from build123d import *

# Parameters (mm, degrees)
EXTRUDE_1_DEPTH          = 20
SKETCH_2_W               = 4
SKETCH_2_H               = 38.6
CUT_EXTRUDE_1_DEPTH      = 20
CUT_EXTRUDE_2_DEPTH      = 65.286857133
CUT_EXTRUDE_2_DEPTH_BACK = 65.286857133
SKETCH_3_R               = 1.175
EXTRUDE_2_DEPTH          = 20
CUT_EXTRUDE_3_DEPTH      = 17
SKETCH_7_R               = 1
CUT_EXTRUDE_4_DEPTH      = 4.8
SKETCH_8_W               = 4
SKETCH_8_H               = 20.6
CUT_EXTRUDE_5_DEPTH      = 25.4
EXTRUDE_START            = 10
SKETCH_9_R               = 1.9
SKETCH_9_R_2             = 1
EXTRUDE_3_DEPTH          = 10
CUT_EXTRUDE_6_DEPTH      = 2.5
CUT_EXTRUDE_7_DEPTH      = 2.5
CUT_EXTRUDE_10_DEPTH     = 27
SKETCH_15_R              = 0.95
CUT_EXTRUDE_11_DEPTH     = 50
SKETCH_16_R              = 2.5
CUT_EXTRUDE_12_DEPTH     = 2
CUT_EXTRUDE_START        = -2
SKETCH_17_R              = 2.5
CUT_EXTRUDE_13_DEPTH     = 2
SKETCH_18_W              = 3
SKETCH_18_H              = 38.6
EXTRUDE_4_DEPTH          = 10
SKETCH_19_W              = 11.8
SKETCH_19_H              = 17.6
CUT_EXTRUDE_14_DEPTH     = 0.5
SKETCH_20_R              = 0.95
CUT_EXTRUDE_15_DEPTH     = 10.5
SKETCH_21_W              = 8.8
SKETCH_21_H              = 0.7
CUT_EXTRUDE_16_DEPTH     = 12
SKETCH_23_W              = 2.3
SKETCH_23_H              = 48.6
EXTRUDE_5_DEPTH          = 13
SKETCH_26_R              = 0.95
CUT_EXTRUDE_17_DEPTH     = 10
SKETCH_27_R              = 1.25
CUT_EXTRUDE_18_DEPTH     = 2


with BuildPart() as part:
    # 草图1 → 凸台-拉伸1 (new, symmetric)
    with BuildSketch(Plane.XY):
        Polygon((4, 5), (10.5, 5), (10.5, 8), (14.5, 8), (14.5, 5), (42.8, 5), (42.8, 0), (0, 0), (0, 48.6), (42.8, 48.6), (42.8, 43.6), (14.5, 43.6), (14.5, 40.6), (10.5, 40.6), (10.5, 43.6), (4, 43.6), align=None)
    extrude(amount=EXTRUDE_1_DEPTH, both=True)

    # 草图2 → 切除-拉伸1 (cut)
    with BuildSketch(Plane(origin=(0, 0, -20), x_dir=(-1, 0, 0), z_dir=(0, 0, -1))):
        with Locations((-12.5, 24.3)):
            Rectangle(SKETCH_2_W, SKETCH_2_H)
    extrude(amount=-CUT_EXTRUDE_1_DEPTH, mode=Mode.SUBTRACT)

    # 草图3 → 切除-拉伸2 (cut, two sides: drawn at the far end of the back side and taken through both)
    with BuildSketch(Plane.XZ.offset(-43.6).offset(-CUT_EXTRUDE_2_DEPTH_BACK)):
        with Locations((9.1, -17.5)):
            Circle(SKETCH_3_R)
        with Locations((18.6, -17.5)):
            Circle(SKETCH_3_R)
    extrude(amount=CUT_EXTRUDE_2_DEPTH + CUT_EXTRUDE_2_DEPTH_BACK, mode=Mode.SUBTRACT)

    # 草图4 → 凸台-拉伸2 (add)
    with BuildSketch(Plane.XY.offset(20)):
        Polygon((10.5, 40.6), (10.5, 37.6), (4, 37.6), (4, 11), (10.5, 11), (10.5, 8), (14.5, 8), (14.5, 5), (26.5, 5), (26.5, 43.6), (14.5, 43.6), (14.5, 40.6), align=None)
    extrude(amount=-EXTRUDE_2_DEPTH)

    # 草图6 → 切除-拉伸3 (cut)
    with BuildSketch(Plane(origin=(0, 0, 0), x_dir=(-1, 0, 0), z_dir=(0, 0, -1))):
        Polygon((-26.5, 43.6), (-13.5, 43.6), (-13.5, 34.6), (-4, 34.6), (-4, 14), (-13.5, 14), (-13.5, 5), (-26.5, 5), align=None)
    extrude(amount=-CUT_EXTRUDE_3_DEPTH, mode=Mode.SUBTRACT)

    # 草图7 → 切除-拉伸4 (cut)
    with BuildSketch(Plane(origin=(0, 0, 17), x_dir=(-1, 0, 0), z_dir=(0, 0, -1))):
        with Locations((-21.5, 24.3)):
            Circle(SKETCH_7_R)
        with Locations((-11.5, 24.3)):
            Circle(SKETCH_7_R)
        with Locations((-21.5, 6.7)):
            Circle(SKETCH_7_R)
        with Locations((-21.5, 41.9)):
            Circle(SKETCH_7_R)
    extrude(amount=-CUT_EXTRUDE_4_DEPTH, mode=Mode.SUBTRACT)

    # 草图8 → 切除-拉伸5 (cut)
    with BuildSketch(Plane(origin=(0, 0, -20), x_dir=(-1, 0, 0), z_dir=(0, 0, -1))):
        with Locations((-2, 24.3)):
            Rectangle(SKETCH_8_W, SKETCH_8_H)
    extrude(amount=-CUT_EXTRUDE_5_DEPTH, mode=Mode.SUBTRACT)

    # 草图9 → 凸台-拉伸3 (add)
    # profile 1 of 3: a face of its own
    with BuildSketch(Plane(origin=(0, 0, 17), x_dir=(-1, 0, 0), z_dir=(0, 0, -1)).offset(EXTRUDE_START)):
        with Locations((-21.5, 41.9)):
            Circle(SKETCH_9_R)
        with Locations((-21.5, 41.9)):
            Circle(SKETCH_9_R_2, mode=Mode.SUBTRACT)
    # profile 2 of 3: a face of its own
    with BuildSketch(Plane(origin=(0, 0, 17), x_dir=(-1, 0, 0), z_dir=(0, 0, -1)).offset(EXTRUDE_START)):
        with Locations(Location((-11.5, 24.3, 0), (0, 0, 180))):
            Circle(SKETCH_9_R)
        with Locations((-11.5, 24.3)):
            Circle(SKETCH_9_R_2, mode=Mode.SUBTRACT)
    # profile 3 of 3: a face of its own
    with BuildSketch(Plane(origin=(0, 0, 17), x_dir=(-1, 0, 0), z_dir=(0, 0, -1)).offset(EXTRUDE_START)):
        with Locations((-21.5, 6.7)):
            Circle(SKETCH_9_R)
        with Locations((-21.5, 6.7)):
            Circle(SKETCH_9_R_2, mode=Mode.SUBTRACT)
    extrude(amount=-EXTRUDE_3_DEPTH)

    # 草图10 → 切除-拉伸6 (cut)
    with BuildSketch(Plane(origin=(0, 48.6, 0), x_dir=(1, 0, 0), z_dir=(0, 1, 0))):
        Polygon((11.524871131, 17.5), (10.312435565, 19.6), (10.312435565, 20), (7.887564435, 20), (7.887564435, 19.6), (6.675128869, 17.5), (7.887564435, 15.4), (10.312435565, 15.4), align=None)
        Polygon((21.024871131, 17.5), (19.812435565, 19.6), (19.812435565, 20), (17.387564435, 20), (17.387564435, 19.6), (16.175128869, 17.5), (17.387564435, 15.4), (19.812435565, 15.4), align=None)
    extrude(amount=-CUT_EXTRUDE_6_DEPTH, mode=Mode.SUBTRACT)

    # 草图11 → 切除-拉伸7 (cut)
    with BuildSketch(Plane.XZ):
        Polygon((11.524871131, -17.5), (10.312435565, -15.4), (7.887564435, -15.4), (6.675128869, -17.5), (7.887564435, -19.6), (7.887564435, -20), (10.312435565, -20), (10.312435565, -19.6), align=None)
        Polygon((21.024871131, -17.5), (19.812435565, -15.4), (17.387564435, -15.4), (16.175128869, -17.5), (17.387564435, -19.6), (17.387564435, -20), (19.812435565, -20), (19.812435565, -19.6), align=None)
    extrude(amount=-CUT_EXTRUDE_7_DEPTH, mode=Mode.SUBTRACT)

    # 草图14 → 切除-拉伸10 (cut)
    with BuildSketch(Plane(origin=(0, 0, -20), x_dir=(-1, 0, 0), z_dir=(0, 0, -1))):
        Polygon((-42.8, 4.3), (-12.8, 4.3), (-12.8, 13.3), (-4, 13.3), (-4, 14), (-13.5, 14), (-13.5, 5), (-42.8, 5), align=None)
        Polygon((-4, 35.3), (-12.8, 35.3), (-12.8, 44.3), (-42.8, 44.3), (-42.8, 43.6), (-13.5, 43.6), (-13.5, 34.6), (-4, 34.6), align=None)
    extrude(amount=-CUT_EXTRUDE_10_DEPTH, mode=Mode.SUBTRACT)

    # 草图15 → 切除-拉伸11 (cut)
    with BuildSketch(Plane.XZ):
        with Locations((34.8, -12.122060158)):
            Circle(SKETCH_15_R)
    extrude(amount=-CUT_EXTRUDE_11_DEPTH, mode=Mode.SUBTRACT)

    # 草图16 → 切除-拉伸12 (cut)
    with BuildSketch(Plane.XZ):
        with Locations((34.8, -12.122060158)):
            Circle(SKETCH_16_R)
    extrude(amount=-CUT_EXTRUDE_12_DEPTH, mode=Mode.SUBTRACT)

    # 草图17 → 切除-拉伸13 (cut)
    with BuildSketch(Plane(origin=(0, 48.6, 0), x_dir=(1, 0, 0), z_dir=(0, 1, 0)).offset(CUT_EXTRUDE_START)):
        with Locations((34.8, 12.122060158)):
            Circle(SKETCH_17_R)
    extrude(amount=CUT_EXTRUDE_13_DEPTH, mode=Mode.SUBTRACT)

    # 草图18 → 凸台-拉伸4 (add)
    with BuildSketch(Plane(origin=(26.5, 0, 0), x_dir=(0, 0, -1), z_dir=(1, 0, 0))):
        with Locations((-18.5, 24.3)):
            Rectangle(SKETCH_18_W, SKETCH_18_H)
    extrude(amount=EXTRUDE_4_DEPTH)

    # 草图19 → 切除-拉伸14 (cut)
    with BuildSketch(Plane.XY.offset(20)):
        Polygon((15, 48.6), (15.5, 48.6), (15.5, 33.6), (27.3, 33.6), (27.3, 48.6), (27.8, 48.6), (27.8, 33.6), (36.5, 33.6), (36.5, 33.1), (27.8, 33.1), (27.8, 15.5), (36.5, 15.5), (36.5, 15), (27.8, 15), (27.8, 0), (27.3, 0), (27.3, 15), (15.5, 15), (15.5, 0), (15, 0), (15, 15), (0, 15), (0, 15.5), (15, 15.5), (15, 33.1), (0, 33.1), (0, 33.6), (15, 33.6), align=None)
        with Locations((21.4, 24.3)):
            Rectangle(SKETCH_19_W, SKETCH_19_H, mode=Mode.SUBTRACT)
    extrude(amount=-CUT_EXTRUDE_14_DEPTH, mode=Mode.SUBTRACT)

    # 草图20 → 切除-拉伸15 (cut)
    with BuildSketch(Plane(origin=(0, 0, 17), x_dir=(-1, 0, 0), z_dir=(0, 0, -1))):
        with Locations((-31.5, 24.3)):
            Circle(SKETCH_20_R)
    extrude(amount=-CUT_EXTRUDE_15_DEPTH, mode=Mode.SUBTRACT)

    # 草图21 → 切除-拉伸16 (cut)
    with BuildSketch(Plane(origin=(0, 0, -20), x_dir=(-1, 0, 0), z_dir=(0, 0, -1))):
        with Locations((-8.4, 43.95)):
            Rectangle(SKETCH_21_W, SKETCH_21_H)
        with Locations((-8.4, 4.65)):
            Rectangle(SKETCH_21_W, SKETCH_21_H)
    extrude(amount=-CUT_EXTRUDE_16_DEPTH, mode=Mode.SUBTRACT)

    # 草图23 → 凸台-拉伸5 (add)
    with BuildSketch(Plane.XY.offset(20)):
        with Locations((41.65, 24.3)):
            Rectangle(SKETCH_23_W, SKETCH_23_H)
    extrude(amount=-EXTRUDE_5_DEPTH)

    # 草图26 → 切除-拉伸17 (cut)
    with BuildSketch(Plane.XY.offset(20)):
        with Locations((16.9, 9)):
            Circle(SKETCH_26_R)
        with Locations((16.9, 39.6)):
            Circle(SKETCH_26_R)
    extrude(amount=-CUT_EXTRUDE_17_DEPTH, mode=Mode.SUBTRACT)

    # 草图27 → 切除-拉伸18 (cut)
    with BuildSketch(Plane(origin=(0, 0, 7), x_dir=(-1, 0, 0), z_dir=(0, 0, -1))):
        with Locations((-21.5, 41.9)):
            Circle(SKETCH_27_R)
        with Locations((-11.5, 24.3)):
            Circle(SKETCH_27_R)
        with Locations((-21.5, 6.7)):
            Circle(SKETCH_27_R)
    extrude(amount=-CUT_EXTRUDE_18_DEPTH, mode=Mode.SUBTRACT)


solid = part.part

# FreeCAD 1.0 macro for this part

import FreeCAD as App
import Part
import Sketcher
Q = App.Units.Quantity

doc = App.newDocument("Part")
body = doc.addObject("PartDesign::Body", "Body")

sketch1 = body.newObject("Sketcher::SketchObject", "Sketch")
sketch1.AttachmentSupport = (doc.getObject("XY_Plane"), [""])
sketch1.MapMode = "FlatFace"
sketch1.addGeometry([
    Part.LineSegment(App.Vector(10.5, 5, 0), App.Vector(4, 5, 0)),
    Part.LineSegment(App.Vector(4, 5, 0), App.Vector(4, 43.6, 0)),
    Part.LineSegment(App.Vector(4, 43.6, 0), App.Vector(10.5, 43.6, 0)),
    Part.LineSegment(App.Vector(10.5, 43.6, 0), App.Vector(10.5, 40.6, 0)),
    Part.LineSegment(App.Vector(10.5, 40.6, 0), App.Vector(14.5, 40.6, 0)),
    Part.LineSegment(App.Vector(14.5, 40.6, 0), App.Vector(14.5, 43.6, 0)),
    Part.LineSegment(App.Vector(14.5, 43.6, 0), App.Vector(42.8, 43.6, 0)),
    Part.LineSegment(App.Vector(42.8, 43.6, 0), App.Vector(42.8, 48.6, 0)),
    Part.LineSegment(App.Vector(42.8, 48.6, 0), App.Vector(0, 48.6, 0)),
    Part.LineSegment(App.Vector(0, 48.6, 0), App.Vector(0, 0, 0)),
    Part.LineSegment(App.Vector(0, 0, 0), App.Vector(42.8, 0, 0)),
    Part.LineSegment(App.Vector(42.8, 0, 0), App.Vector(42.8, 5, 0)),
    Part.LineSegment(App.Vector(42.8, 5, 0), App.Vector(14.5, 5, 0)),
    Part.LineSegment(App.Vector(14.5, 5, 0), App.Vector(14.5, 8, 0)),
    Part.LineSegment(App.Vector(14.5, 8, 0), App.Vector(10.5, 8, 0)),
    Part.LineSegment(App.Vector(10.5, 8, 0), App.Vector(10.5, 5, 0)),
], False)
sketch1.addConstraint([
    Sketcher.Constraint("Coincident", 0, 2, 1, 1),
    Sketcher.Constraint("Coincident", 1, 2, 2, 1),
    Sketcher.Constraint("Coincident", 2, 2, 3, 1),
    Sketcher.Constraint("Coincident", 3, 2, 4, 1),
    Sketcher.Constraint("Coincident", 4, 2, 5, 1),
    Sketcher.Constraint("Coincident", 5, 2, 6, 1),
    Sketcher.Constraint("Coincident", 6, 2, 7, 1),
    Sketcher.Constraint("Coincident", 7, 2, 8, 1),
    Sketcher.Constraint("Coincident", 8, 2, 9, 1),
    Sketcher.Constraint("Coincident", 9, 2, 10, 1),
    Sketcher.Constraint("Coincident", 10, 2, 11, 1),
    Sketcher.Constraint("Coincident", 11, 2, 12, 1),
    Sketcher.Constraint("Coincident", 12, 2, 13, 1),
    Sketcher.Constraint("Coincident", 13, 2, 14, 1),
    Sketcher.Constraint("Coincident", 14, 2, 15, 1),
    Sketcher.Constraint("Coincident", 15, 2, 0, 1),
    Sketcher.Constraint("Horizontal", 0),
    Sketcher.Constraint("Vertical", 1),
    Sketcher.Constraint("Horizontal", 2),
    Sketcher.Constraint("Vertical", 3),
    Sketcher.Constraint("Horizontal", 4),
    Sketcher.Constraint("Vertical", 5),
    Sketcher.Constraint("Horizontal", 6),
    Sketcher.Constraint("Vertical", 7),
    Sketcher.Constraint("Horizontal", 8),
    Sketcher.Constraint("Vertical", 9),
    Sketcher.Constraint("Horizontal", 10),
    Sketcher.Constraint("Vertical", 11),
    Sketcher.Constraint("Horizontal", 12),
    Sketcher.Constraint("Vertical", 13),
    Sketcher.Constraint("Horizontal", 14),
    Sketcher.Constraint("Vertical", 15),
    Sketcher.Constraint("Coincident", 9, 2, -1, 1),
    Sketcher.Constraint("Horizontal", 2, 2, 5, 2),
    Sketcher.Constraint("Horizontal", 0, 2, 11, 2),
    Sketcher.Constraint("Vertical", 7, 2, 10, 2),
    Sketcher.Constraint("Vertical", 5, 2, 12, 2),
    Sketcher.Constraint("Vertical", 3, 2, 14, 2),
    Sketcher.Constraint("Equal", 7, 11),
    Sketcher.Constraint("Equal", 5, 13),
    Sketcher.Constraint("DistanceX", 4, 1, 4, 2, 4.0),
    Sketcher.Constraint("DistanceY", 3, 2, 3, 1, 3.0),
    Sketcher.Constraint("DistanceY", 7, 1, 7, 2, 5.0),
    Sketcher.Constraint("DistanceX", 0, 2, 0, 1, 6.5),
    Sketcher.Constraint("DistanceX", 6, 1, 6, 2, 28.3),
    Sketcher.Constraint("DistanceX", 8, 2, 8, 1, 42.8),
    Sketcher.Constraint("DistanceY", 1, 1, 1, 2, 38.6),
])
pad1 = body.newObject("PartDesign::Pad", "Pad")
pad1.Profile = sketch1
pad1.Length = 40
pad1.Midplane = True

sketch2 = body.newObject("Sketcher::SketchObject", "Sketch001")
sketch2.AttachmentSupport = (doc.getObject("XY_Plane"), [""])
sketch2.MapMode = "FlatFace"
sketch2.AttachmentOffset = App.Placement(App.Vector(0, 0, -20), App.Rotation())
sketch2.addGeometry([
    Part.LineSegment(App.Vector(14.5, 43.6, 0), App.Vector(14.5, 5, 0)),
    Part.LineSegment(App.Vector(14.5, 5, 0), App.Vector(10.5, 5, 0)),
    Part.LineSegment(App.Vector(10.5, 5, 0), App.Vector(10.5, 43.6, 0)),
    Part.LineSegment(App.Vector(10.5, 43.6, 0), App.Vector(14.5, 43.6, 0)),
], False)
sketch2.addConstraint([
    Sketcher.Constraint("Coincident", 0, 2, 1, 1),
    Sketcher.Constraint("Coincident", 1, 2, 2, 1),
    Sketcher.Constraint("Coincident", 2, 2, 3, 1),
    Sketcher.Constraint("Coincident", 3, 2, 0, 1),
    Sketcher.Constraint("Vertical", 0),
    Sketcher.Constraint("Horizontal", 1),
    Sketcher.Constraint("Vertical", 2),
    Sketcher.Constraint("Horizontal", 3),
    Sketcher.Constraint("DistanceX", 1, 2, 1, 1, 4.0),
    Sketcher.Constraint("DistanceY", 0, 2, 0, 1, 38.6),
    Sketcher.Constraint("DistanceY", -1, 1, 0, 2, 5.0),
    Sketcher.Constraint("DistanceX", -1, 1, 0, 2, 14.5),
])
pocket1 = body.newObject("PartDesign::Pocket", "Pocket")
pocket1.Profile = sketch2
pocket1.Length = 20
pocket1.Reversed = True

sketch3 = body.newObject("Sketcher::SketchObject", "Sketch002")
sketch3.AttachmentSupport = (doc.getObject("XZ_Plane"), [""])
sketch3.MapMode = "FlatFace"
sketch3.AttachmentOffset = App.Placement(App.Vector(0, 0, -43.6), App.Rotation())
sketch3.addGeometry([
    Part.Circle(App.Vector(9.1, -17.5, 0), App.Vector(0, 0, 1), 1.2),
    Part.Circle(App.Vector(18.6, -17.5, 0), App.Vector(0, 0, 1), 1.2),
], False)
sketch3.addConstraint([
    Sketcher.Constraint("Equal", 0, 1),
    Sketcher.Constraint("Horizontal", 0, 3, 1, 3),
    Sketcher.Constraint("Diameter", 0, 2.35),
    Sketcher.Constraint("DistanceX", -1, 1, 0, 3, 9.1),
    Sketcher.Constraint("DistanceY", 0, 3, -1, 1, 17.5),
    Sketcher.Constraint("DistanceX", -1, 1, 1, 3, 18.6),
])
pocket2 = body.newObject("PartDesign::Pocket", "Pocket001")
pocket2.Profile = sketch3
pocket2.Type = "ThroughAll"
pocket2.Midplane = True

sketch4 = body.newObject("Sketcher::SketchObject", "Sketch003")
sketch4.AttachmentSupport = (doc.getObject("XY_Plane"), [""])
sketch4.MapMode = "FlatFace"
sketch4.AttachmentOffset = App.Placement(App.Vector(0, 0, 20), App.Rotation())
sketch4.addGeometry([
    Part.LineSegment(App.Vector(10.5, 40.6, 0), App.Vector(10.5, 37.6, 0)),
    Part.LineSegment(App.Vector(10.5, 37.6, 0), App.Vector(4, 37.6, 0)),
    Part.LineSegment(App.Vector(4, 37.6, 0), App.Vector(4, 11, 0)),
    Part.LineSegment(App.Vector(4, 11, 0), App.Vector(10.5, 11, 0)),
    Part.LineSegment(App.Vector(10.5, 11, 0), App.Vector(10.5, 8, 0)),
    Part.LineSegment(App.Vector(10.5, 8, 0), App.Vector(14.5, 8, 0)),
    Part.LineSegment(App.Vector(14.5, 8, 0), App.Vector(14.5, 5, 0)),
    Part.LineSegment(App.Vector(14.5, 5, 0), App.Vector(26.5, 5, 0)),
    Part.LineSegment(App.Vector(26.5, 5, 0), App.Vector(26.5, 43.6, 0)),
    Part.LineSegment(App.Vector(26.5, 43.6, 0), App.Vector(14.5, 43.6, 0)),
    Part.LineSegment(App.Vector(14.5, 43.6, 0), App.Vector(14.5, 40.6, 0)),
    Part.LineSegment(App.Vector(14.5, 40.6, 0), App.Vector(10.5, 40.6, 0)),
], False)
sketch4.addConstraint([
    Sketcher.Constraint("Coincident", 0, 2, 1, 1),
    Sketcher.Constraint("Coincident", 1, 2, 2, 1),
    Sketcher.Constraint("Coincident", 2, 2, 3, 1),
    Sketcher.Constraint("Coincident", 3, 2, 4, 1),
    Sketcher.Constraint("Coincident", 4, 2, 5, 1),
    Sketcher.Constraint("Coincident", 5, 2, 6, 1),
    Sketcher.Constraint("Coincident", 6, 2, 7, 1),
    Sketcher.Constraint("Coincident", 7, 2, 8, 1),
    Sketcher.Constraint("Coincident", 8, 2, 9, 1),
    Sketcher.Constraint("Coincident", 9, 2, 10, 1),
    Sketcher.Constraint("Coincident", 10, 2, 11, 1),
    Sketcher.Constraint("Coincident", 11, 2, 0, 1),
    Sketcher.Constraint("Vertical", 0),
    Sketcher.Constraint("Horizontal", 1),
    Sketcher.Constraint("Vertical", 2),
    Sketcher.Constraint("Horizontal", 3),
    Sketcher.Constraint("Vertical", 4),
    Sketcher.Constraint("Horizontal", 5),
    Sketcher.Constraint("Vertical", 6),
    Sketcher.Constraint("Horizontal", 7),
    Sketcher.Constraint("Vertical", 8),
    Sketcher.Constraint("Horizontal", 9),
    Sketcher.Constraint("Vertical", 10),
    Sketcher.Constraint("Horizontal", 11),
    Sketcher.Constraint("Vertical", 0, 2, 3, 2),
    Sketcher.Constraint("Vertical", 6, 2, 9, 2),
    Sketcher.Constraint("Equal", 0, 4),
    Sketcher.Constraint("Equal", 4, 6),
    Sketcher.Constraint("Equal", 6, 10),
    Sketcher.Constraint("DistanceX", 5, 1, 5, 2, 4.0),
    Sketcher.Constraint("DistanceX", 7, 1, 7, 2, 12.0),
    Sketcher.Constraint("DistanceY", 0, 2, 0, 1, 3.0),
    Sketcher.Constraint("DistanceX", 1, 2, 1, 1, 6.5),
    Sketcher.Constraint("DistanceY", 2, 2, 2, 1, 26.6),
    Sketcher.Constraint("DistanceX", -1, 1, 1, 2, 4.0),
    Sketcher.Constraint("DistanceY", -1, 1, 2, 2, 11.0),
])
pad2 = body.newObject("PartDesign::Pad", "Pad001")
pad2.Profile = sketch4
pad2.Length = 20
pad2.Reversed = True

sketch5 = body.newObject("Sketcher::SketchObject", "Sketch004")
sketch5.AttachmentSupport = (doc.getObject("XY_Plane"), [""])
sketch5.MapMode = "FlatFace"
sketch5.addGeometry([
    Part.LineSegment(App.Vector(14, 44, 0), App.Vector(26, 44, 0)),
    Part.LineSegment(App.Vector(26, 44, 0), App.Vector(26, 5, 0)),
    Part.LineSegment(App.Vector(26, 5, 0), App.Vector(14, 5, 0)),
    Part.LineSegment(App.Vector(14, 5, 0), App.Vector(14, 14, 0)),
    Part.LineSegment(App.Vector(14, 14, 0), App.Vector(4, 14, 0)),
    Part.LineSegment(App.Vector(4, 14, 0), App.Vector(4, 35, 0)),
    Part.LineSegment(App.Vector(4, 35, 0), App.Vector(14, 35, 0)),
    Part.LineSegment(App.Vector(14, 35, 0), App.Vector(14, 44, 0)),
], False)
sketch5.addConstraint([
    Sketcher.Constraint("Coincident", 0, 2, 1, 1),
    Sketcher.Constraint("Coincident", 1, 2, 2, 1),
    Sketcher.Constraint("Coincident", 2, 2, 3, 1),
    Sketcher.Constraint("Coincident", 3, 2, 4, 1),
    Sketcher.Constraint("Coincident", 4, 2, 5, 1),
    Sketcher.Constraint("Coincident", 5, 2, 6, 1),
    Sketcher.Constraint("Coincident", 6, 2, 7, 1),
    Sketcher.Constraint("Coincident", 7, 2, 0, 1),
    Sketcher.Constraint("Horizontal", 0),
    Sketcher.Constraint("Vertical", 1),
    Sketcher.Constraint("Horizontal", 2),
    Sketcher.Constraint("Vertical", 3),
    Sketcher.Constraint("Horizontal", 4),
    Sketcher.Constraint("Vertical", 5),
    Sketcher.Constraint("Horizontal", 6),
    Sketcher.Constraint("Vertical", 7),
    Sketcher.Constraint("Vertical", 3, 2, 6, 2),
    Sketcher.Constraint("Equal", 3, 7),
    Sketcher.Constraint("DistanceX", 0, 1, 0, 2, 13.0),
    Sketcher.Constraint("DistanceY", 3, 1, 3, 2, 9.0),
    Sketcher.Constraint("DistanceX", 4, 2, 4, 1, 9.5),
    Sketcher.Constraint("DistanceY", 1, 2, 1, 1, 38.6),
    Sketcher.Constraint("DistanceY", -1, 1, 1, 2, 5.0),
    Sketcher.Constraint("DistanceX", -1, 1, 4, 2, 4.0),
])
pocket3 = body.newObject("PartDesign::Pocket", "Pocket002")
pocket3.Profile = sketch5
pocket3.Length = 17
pocket3.Reversed = True

sketch6 = body.newObject("Sketcher::SketchObject", "Sketch005")
sketch6.AttachmentSupport = (doc.getObject("XY_Plane"), [""])
sketch6.MapMode = "FlatFace"
sketch6.AttachmentOffset = App.Placement(App.Vector(0, 0, 17), App.Rotation())
sketch6.addGeometry([
    Part.Circle(App.Vector(21.5, 24.3, 0), App.Vector(0, 0, 1), 1),
    Part.Circle(App.Vector(11.5, 24.3, 0), App.Vector(0, 0, 1), 1),
    Part.Circle(App.Vector(21.5, 6.7, 0), App.Vector(0, 0, 1), 1),
    Part.Circle(App.Vector(21.5, 41.9, 0), App.Vector(0, 0, 1), 1),
], False)
sketch6.addConstraint([
    Sketcher.Constraint("Equal", 0, 1),
    Sketcher.Constraint("Equal", 1, 2),
    Sketcher.Constraint("Equal", 2, 3),
    Sketcher.Constraint("Horizontal", 0, 3, 1, 3),
    Sketcher.Constraint("Vertical", 0, 3, 2, 3),
    Sketcher.Constraint("Vertical", 2, 3, 3, 3),
    Sketcher.Constraint("Diameter", 0, 2.0),
    Sketcher.Constraint("DistanceX", 1, 3, 0, 3, 10.0),
    Sketcher.Constraint("DistanceX", -1, 1, 0, 3, 21.5),
    Sketcher.Constraint("DistanceY", -1, 1, 0, 3, 24.3),
    Sketcher.Constraint("DistanceY", -1, 1, 2, 3, 6.7),
    Sketcher.Constraint("DistanceY", -1, 1, 3, 3, 41.9),
])
pocket4 = body.newObject("PartDesign::Pocket", "Pocket003")
pocket4.Profile = sketch6
pocket4.Length = 4.8
pocket4.Reversed = True

sketch7 = body.newObject("Sketcher::SketchObject", "Sketch006")
sketch7.AttachmentSupport = (doc.getObject("XY_Plane"), [""])
sketch7.MapMode = "FlatFace"
sketch7.AttachmentOffset = App.Placement(App.Vector(0, 0, -20), App.Rotation())
sketch7.addGeometry([
    Part.LineSegment(App.Vector(4, 34.6, 0), App.Vector(4, 14, 0)),
    Part.LineSegment(App.Vector(4, 14, 0), App.Vector(0, 14, 0)),
    Part.LineSegment(App.Vector(0, 14, 0), App.Vector(0, 34.6, 0)),
    Part.LineSegment(App.Vector(0, 34.6, 0), App.Vector(4, 34.6, 0)),
], False)
sketch7.addConstraint([
    Sketcher.Constraint("Coincident", 0, 2, 1, 1),
    Sketcher.Constraint("Coincident", 1, 2, 2, 1),
    Sketcher.Constraint("Coincident", 2, 2, 3, 1),
    Sketcher.Constraint("Coincident", 3, 2, 0, 1),
    Sketcher.Constraint("Vertical", 0),
    Sketcher.Constraint("Horizontal", 1),
    Sketcher.Constraint("Vertical", 2),
    Sketcher.Constraint("Horizontal", 3),
    Sketcher.Constraint("PointOnObject", 1, 2, -2),
    Sketcher.Constraint("DistanceX", 1, 2, 1, 1, 4.0),
    Sketcher.Constraint("DistanceY", 0, 2, 0, 1, 20.6),
    Sketcher.Constraint("DistanceY", -1, 1, 0, 2, 14.0),
])
pocket5 = body.newObject("PartDesign::Pocket", "Pocket004")
pocket5.Profile = sketch7
pocket5.Length = 25.4
pocket5.Reversed = True

sketch8 = body.newObject("Sketcher::SketchObject", "Sketch007")
sketch8.AttachmentSupport = (doc.getObject("XY_Plane"), [""])
sketch8.MapMode = "FlatFace"
sketch8.AttachmentOffset = App.Placement(App.Vector(0, 0, 7), App.Rotation())
sketch8.addGeometry([
    Part.Circle(App.Vector(21.5, 41.9, 0), App.Vector(0, 0, 1), 1.9),
    Part.Circle(App.Vector(21.5, 41.9, 0), App.Vector(0, 0, 1), 1),
    Part.Circle(App.Vector(11.5, 24.3, 0), App.Vector(0, 0, 1), 1.9),
    Part.Circle(App.Vector(11.5, 24.3, 0), App.Vector(0, 0, 1), 1),
    Part.Circle(App.Vector(21.5, 6.7, 0), App.Vector(0, 0, 1), 1.9),
    Part.Circle(App.Vector(21.5, 6.7, 0), App.Vector(0, 0, 1), 1),
], False)
sketch8.addConstraint([
    Sketcher.Constraint("Coincident", 1, 3, 0, 3),
    Sketcher.Constraint("Coincident", 3, 3, 2, 3),
    Sketcher.Constraint("Coincident", 5, 3, 4, 3),
    Sketcher.Constraint("Equal", 0, 2),
    Sketcher.Constraint("Equal", 1, 3),
    Sketcher.Constraint("Equal", 2, 4),
    Sketcher.Constraint("Equal", 3, 5),
    Sketcher.Constraint("Vertical", 1, 3, 4, 3),
    Sketcher.Constraint("Diameter", 1, 2.0),
    Sketcher.Constraint("Diameter", 0, 3.8),
    Sketcher.Constraint("DistanceX", 2, 3, 0, 3, 10.0),
    Sketcher.Constraint("DistanceX", -1, 1, 0, 3, 21.5),
    Sketcher.Constraint("DistanceY", -1, 1, 0, 3, 41.9),
    Sketcher.Constraint("DistanceY", -1, 1, 2, 3, 24.3),
    Sketcher.Constraint("DistanceY", -1, 1, 4, 3, 6.7),
])
pad3 = body.newObject("PartDesign::Pad", "Pad002")
pad3.Profile = sketch8
pad3.Length = 10

sketch9 = body.newObject("Sketcher::SketchObject", "Sketch008")
sketch9.AttachmentSupport = (doc.getObject("XZ_Plane"), [""])
sketch9.MapMode = "FlatFace"
sketch9.AttachmentOffset = App.Placement(App.Vector(0, 0, -48.6), App.Rotation())
sketch9.addGeometry([
    Part.LineSegment(App.Vector(11.52, -17.5, 0), App.Vector(10.31, -19.6, 0)),
    Part.LineSegment(App.Vector(10.31, -19.6, 0), App.Vector(10.31, -20, 0)),
    Part.LineSegment(App.Vector(10.31, -20, 0), App.Vector(7.89, -20, 0)),
    Part.LineSegment(App.Vector(7.89, -20, 0), App.Vector(7.89, -19.6, 0)),
    Part.LineSegment(App.Vector(7.89, -19.6, 0), App.Vector(6.68, -17.5, 0)),
    Part.LineSegment(App.Vector(6.68, -17.5, 0), App.Vector(7.89, -15.4, 0)),
    Part.LineSegment(App.Vector(7.89, -15.4, 0), App.Vector(10.31, -15.4, 0)),
    Part.LineSegment(App.Vector(10.31, -15.4, 0), App.Vector(11.52, -17.5, 0)),
    Part.LineSegment(App.Vector(21.02, -17.5, 0), App.Vector(19.81, -19.6, 0)),
    Part.LineSegment(App.Vector(19.81, -19.6, 0), App.Vector(19.81, -20, 0)),
    Part.LineSegment(App.Vector(19.81, -20, 0), App.Vector(17.39, -20, 0)),
    Part.LineSegment(App.Vector(17.39, -20, 0), App.Vector(17.39, -19.6, 0)),
    Part.LineSegment(App.Vector(17.39, -19.6, 0), App.Vector(16.18, -17.5, 0)),
    Part.LineSegment(App.Vector(16.18, -17.5, 0), App.Vector(17.39, -15.4, 0)),
    Part.LineSegment(App.Vector(17.39, -15.4, 0), App.Vector(19.81, -15.4, 0)),
    Part.LineSegment(App.Vector(19.81, -15.4, 0), App.Vector(21.02, -17.5, 0)),
], False)
sketch9.addConstraint([
    Sketcher.Constraint("Coincident", 0, 2, 1, 1),
    Sketcher.Constraint("Coincident", 1, 2, 2, 1),
    Sketcher.Constraint("Coincident", 2, 2, 3, 1),
    Sketcher.Constraint("Coincident", 3, 2, 4, 1),
    Sketcher.Constraint("Coincident", 4, 2, 5, 1),
    Sketcher.Constraint("Coincident", 5, 2, 6, 1),
    Sketcher.Constraint("Coincident", 6, 2, 7, 1),
    Sketcher.Constraint("Coincident", 7, 2, 0, 1),
    Sketcher.Constraint("Coincident", 8, 2, 9, 1),
    Sketcher.Constraint("Coincident", 9, 2, 10, 1),
    Sketcher.Constraint("Coincident", 10, 2, 11, 1),
    Sketcher.Constraint("Coincident", 11, 2, 12, 1),
    Sketcher.Constraint("Coincident", 12, 2, 13, 1),
    Sketcher.Constraint("Coincident", 13, 2, 14, 1),
    Sketcher.Constraint("Coincident", 14, 2, 15, 1),
    Sketcher.Constraint("Coincident", 15, 2, 8, 1),
    Sketcher.Constraint("Vertical", 1),
    Sketcher.Constraint("Horizontal", 2),
    Sketcher.Constraint("Vertical", 3),
    Sketcher.Constraint("Horizontal", 6),
    Sketcher.Constraint("Vertical", 9),
    Sketcher.Constraint("Horizontal", 10),
    Sketcher.Constraint("Vertical", 11),
    Sketcher.Constraint("Horizontal", 14),
    Sketcher.Constraint("Parallel", 0, 5),
    Sketcher.Constraint("Parallel", 4, 7),
    Sketcher.Constraint("Parallel", 5, 8),
    Sketcher.Constraint("Parallel", 7, 12),
    Sketcher.Constraint("Parallel", 8, 13),
    Sketcher.Constraint("Parallel", 12, 15),
    Sketcher.Constraint("Horizontal", 0, 2, 3, 2),
    Sketcher.Constraint("Horizontal", 4, 2, 7, 2),
    Sketcher.Constraint("Horizontal", 3, 2, 8, 2),
    Sketcher.Constraint("Horizontal", 2, 2, 9, 2),
    Sketcher.Constraint("Horizontal", 8, 2, 11, 2),
    Sketcher.Constraint("Horizontal", 7, 2, 12, 2),
    Sketcher.Constraint("Horizontal", 6, 2, 13, 2),
    Sketcher.Constraint("Horizontal", 12, 2, 15, 2),
    Sketcher.Constraint("Vertical", 3, 2, 5, 2),
    Sketcher.Constraint("Vertical", 1, 2, 6, 2),
    Sketcher.Constraint("Equal", 6, 10),
    Sketcher.Constraint("Angle", 0, Q("-120 deg")),
    Sketcher.Constraint("DistanceY", 1, 2, 1, 1, 0.4),
    Sketcher.Constraint("DistanceY", 1, 2, -1, 1, 20.0),
    Sketcher.Constraint("DistanceY", 4, 2, -1, 1, 17.5),
    Sketcher.Constraint("DistanceX", 0, 2, 8, 2, 9.5),
    Sketcher.Constraint("DistanceX", 2, 2, 2, 1, 2.424871),
    Sketcher.Constraint("DistanceX", -1, 1, 4, 2, 6.675129),
])
pocket6 = body.newObject("PartDesign::Pocket", "Pocket005")
pocket6.Profile = sketch9
pocket6.Length = 2.5
pocket6.Reversed = True

sketch10 = body.newObject("Sketcher::SketchObject", "Sketch009")
sketch10.AttachmentSupport = (doc.getObject("XZ_Plane"), [""])
sketch10.MapMode = "FlatFace"
sketch10.addGeometry([
    Part.LineSegment(App.Vector(11.52, -17.5, 0), App.Vector(10.31, -15.4, 0)),
    Part.LineSegment(App.Vector(10.31, -15.4, 0), App.Vector(7.89, -15.4, 0)),
    Part.LineSegment(App.Vector(7.89, -15.4, 0), App.Vector(6.68, -17.5, 0)),
    Part.LineSegment(App.Vector(6.68, -17.5, 0), App.Vector(7.89, -19.6, 0)),
    Part.LineSegment(App.Vector(7.89, -19.6, 0), App.Vector(7.89, -20, 0)),
    Part.LineSegment(App.Vector(7.89, -20, 0), App.Vector(10.31, -20, 0)),
    Part.LineSegment(App.Vector(10.31, -20, 0), App.Vector(10.31, -19.6, 0)),
    Part.LineSegment(App.Vector(10.31, -19.6, 0), App.Vector(11.52, -17.5, 0)),
    Part.LineSegment(App.Vector(21.02, -17.5, 0), App.Vector(19.81, -15.4, 0)),
    Part.LineSegment(App.Vector(19.81, -15.4, 0), App.Vector(17.39, -15.4, 0)),
    Part.LineSegment(App.Vector(17.39, -15.4, 0), App.Vector(16.18, -17.5, 0)),
    Part.LineSegment(App.Vector(16.18, -17.5, 0), App.Vector(17.39, -19.6, 0)),
    Part.LineSegment(App.Vector(17.39, -19.6, 0), App.Vector(17.39, -20, 0)),
    Part.LineSegment(App.Vector(17.39, -20, 0), App.Vector(19.81, -20, 0)),
    Part.LineSegment(App.Vector(19.81, -20, 0), App.Vector(19.81, -19.6, 0)),
    Part.LineSegment(App.Vector(19.81, -19.6, 0), App.Vector(21.02, -17.5, 0)),
], False)
sketch10.addConstraint([
    Sketcher.Constraint("Coincident", 0, 2, 1, 1),
    Sketcher.Constraint("Coincident", 1, 2, 2, 1),
    Sketcher.Constraint("Coincident", 2, 2, 3, 1),
    Sketcher.Constraint("Coincident", 3, 2, 4, 1),
    Sketcher.Constraint("Coincident", 4, 2, 5, 1),
    Sketcher.Constraint("Coincident", 5, 2, 6, 1),
    Sketcher.Constraint("Coincident", 6, 2, 7, 1),
    Sketcher.Constraint("Coincident", 7, 2, 0, 1),
    Sketcher.Constraint("Coincident", 8, 2, 9, 1),
    Sketcher.Constraint("Coincident", 9, 2, 10, 1),
    Sketcher.Constraint("Coincident", 10, 2, 11, 1),
    Sketcher.Constraint("Coincident", 11, 2, 12, 1),
    Sketcher.Constraint("Coincident", 12, 2, 13, 1),
    Sketcher.Constraint("Coincident", 13, 2, 14, 1),
    Sketcher.Constraint("Coincident", 14, 2, 15, 1),
    Sketcher.Constraint("Coincident", 15, 2, 8, 1),
    Sketcher.Constraint("Horizontal", 1),
    Sketcher.Constraint("Vertical", 4),
    Sketcher.Constraint("Horizontal", 5),
    Sketcher.Constraint("Vertical", 6),
    Sketcher.Constraint("Horizontal", 9),
    Sketcher.Constraint("Vertical", 12),
    Sketcher.Constraint("Horizontal", 13),
    Sketcher.Constraint("Vertical", 14),
    Sketcher.Constraint("Parallel", 0, 3),
    Sketcher.Constraint("Parallel", 2, 7),
    Sketcher.Constraint("Parallel", 3, 8),
    Sketcher.Constraint("Parallel", 7, 10),
    Sketcher.Constraint("Parallel", 8, 11),
    Sketcher.Constraint("Parallel", 10, 15),
    Sketcher.Constraint("Horizontal", 3, 2, 6, 2),
    Sketcher.Constraint("Horizontal", 2, 2, 7, 2),
    Sketcher.Constraint("Horizontal", 1, 2, 8, 2),
    Sketcher.Constraint("Horizontal", 7, 2, 10, 2),
    Sketcher.Constraint("Horizontal", 6, 2, 11, 2),
    Sketcher.Constraint("Horizontal", 5, 2, 12, 2),
    Sketcher.Constraint("Horizontal", 11, 2, 14, 2),
    Sketcher.Constraint("Horizontal", 10, 2, 15, 2),
    Sketcher.Constraint("Vertical", 1, 2, 3, 2),
    Sketcher.Constraint("Vertical", 0, 2, 5, 2),
    Sketcher.Constraint("Equal", 5, 9),
    Sketcher.Constraint("Angle", 0, Q("120 deg")),
    Sketcher.Constraint("DistanceY", 4, 2, 4, 1, 0.4),
    Sketcher.Constraint("DistanceY", 4, 2, -1, 1, 20.0),
    Sketcher.Constraint("DistanceY", 0, 2, -1, 1, 15.4),
    Sketcher.Constraint("DistanceX", 0, 2, 8, 2, 9.5),
    Sketcher.Constraint("DistanceX", 1, 2, 1, 1, 2.424871),
    Sketcher.Constraint("DistanceX", -1, 1, 2, 2, 6.675129),
])
pocket7 = body.newObject("PartDesign::Pocket", "Pocket006")
pocket7.Profile = sketch10
pocket7.Length = 2.5

sketch11 = body.newObject("Sketcher::SketchObject", "Sketch010")
sketch11.AttachmentSupport = (doc.getObject("XY_Plane"), [""])
sketch11.MapMode = "FlatFace"
sketch11.AttachmentOffset = App.Placement(App.Vector(0, 0, -20), App.Rotation())
sketch11.addGeometry([
    Part.LineSegment(App.Vector(42.8, 4.3, 0), App.Vector(12.8, 4.3, 0)),
    Part.LineSegment(App.Vector(12.8, 4.3, 0), App.Vector(12.8, 13.3, 0)),
    Part.LineSegment(App.Vector(12.8, 13.3, 0), App.Vector(4, 13.3, 0)),
    Part.LineSegment(App.Vector(4, 13.3, 0), App.Vector(4, 14, 0)),
    Part.LineSegment(App.Vector(4, 14, 0), App.Vector(13.5, 14, 0)),
    Part.LineSegment(App.Vector(13.5, 14, 0), App.Vector(13.5, 5, 0)),
    Part.LineSegment(App.Vector(13.5, 5, 0), App.Vector(42.8, 5, 0)),
    Part.LineSegment(App.Vector(42.8, 5, 0), App.Vector(42.8, 4.3, 0)),
    Part.LineSegment(App.Vector(4, 35.3, 0), App.Vector(12.8, 35.3, 0)),
    Part.LineSegment(App.Vector(12.8, 35.3, 0), App.Vector(12.8, 44.3, 0)),
    Part.LineSegment(App.Vector(12.8, 44.3, 0), App.Vector(42.8, 44.3, 0)),
    Part.LineSegment(App.Vector(42.8, 44.3, 0), App.Vector(42.8, 43.6, 0)),
    Part.LineSegment(App.Vector(42.8, 43.6, 0), App.Vector(13.5, 43.6, 0)),
    Part.LineSegment(App.Vector(13.5, 43.6, 0), App.Vector(13.5, 34.6, 0)),
    Part.LineSegment(App.Vector(13.5, 34.6, 0), App.Vector(4, 34.6, 0)),
    Part.LineSegment(App.Vector(4, 34.6, 0), App.Vector(4, 35.3, 0)),
], False)
sketch11.addConstraint([
    Sketcher.Constraint("Coincident", 0, 2, 1, 1),
    Sketcher.Constraint("Coincident", 1, 2, 2, 1),
    Sketcher.Constraint("Coincident", 2, 2, 3, 1),
    Sketcher.Constraint("Coincident", 3, 2, 4, 1),
    Sketcher.Constraint("Coincident", 4, 2, 5, 1),
    Sketcher.Constraint("Coincident", 5, 2, 6, 1),
    Sketcher.Constraint("Coincident", 6, 2, 7, 1),
    Sketcher.Constraint("Coincident", 7, 2, 0, 1),
    Sketcher.Constraint("Coincident", 8, 2, 9, 1),
    Sketcher.Constraint("Coincident", 9, 2, 10, 1),
    Sketcher.Constraint("Coincident", 10, 2, 11, 1),
    Sketcher.Constraint("Coincident", 11, 2, 12, 1),
    Sketcher.Constraint("Coincident", 12, 2, 13, 1),
    Sketcher.Constraint("Coincident", 13, 2, 14, 1),
    Sketcher.Constraint("Coincident", 14, 2, 15, 1),
    Sketcher.Constraint("Coincident", 15, 2, 8, 1),
    Sketcher.Constraint("Horizontal", 0),
    Sketcher.Constraint("Vertical", 1),
    Sketcher.Constraint("Horizontal", 2),
    Sketcher.Constraint("Vertical", 3),
    Sketcher.Constraint("Horizontal", 4),
    Sketcher.Constraint("Vertical", 5),
    Sketcher.Constraint("Horizontal", 6),
    Sketcher.Constraint("Vertical", 7),
    Sketcher.Constraint("Horizontal", 8),
    Sketcher.Constraint("Vertical", 9),
    Sketcher.Constraint("Horizontal", 10),
    Sketcher.Constraint("Vertical", 11),
    Sketcher.Constraint("Horizontal", 12),
    Sketcher.Constraint("Vertical", 13),
    Sketcher.Constraint("Horizontal", 14),
    Sketcher.Constraint("Vertical", 15),
    Sketcher.Constraint("Vertical", 1, 2, 8, 2),
    Sketcher.Constraint("Vertical", 7, 2, 10, 2),
    Sketcher.Constraint("Vertical", 5, 2, 12, 2),
    Sketcher.Constraint("Vertical", 3, 2, 14, 2),
    Sketcher.Constraint("Equal", 1, 5),
    Sketcher.Constraint("Equal", 5, 9),
    Sketcher.Constraint("Equal", 7, 11),
    Sketcher.Constraint("Equal", 9, 13),
    Sketcher.Constraint("DistanceX", 0, 2, 0, 1, 30.0),
    Sketcher.Constraint("DistanceY", 1, 1, 1, 2, 9.0),
    Sketcher.Constraint("DistanceX", 2, 2, 2, 1, 8.8),
    Sketcher.Constraint("DistanceX", 4, 1, 4, 2, 9.5),
    Sketcher.Constraint("DistanceY", 3, 1, 3, 2, 0.7),
    Sketcher.Constraint("DistanceX", -1, 1, 2, 2, 4.0),
    Sketcher.Constraint("DistanceY", -1, 1, 3, 2, 14.0),
    Sketcher.Constraint("DistanceY", 1, 2, 8, 2, 22.0),
])
pocket8 = body.newObject("PartDesign::Pocket", "Pocket007")
pocket8.Profile = sketch11
pocket8.Length = 27
pocket8.Reversed = True

sketch12 = body.newObject("Sketcher::SketchObject", "Sketch011")
sketch12.AttachmentSupport = (doc.getObject("XZ_Plane"), [""])
sketch12.MapMode = "FlatFace"
sketch12.addGeometry(Part.Circle(App.Vector(34.8, -12.1, 0), App.Vector(0, 0, 1), 0.9), False)
sketch12.addConstraint([
    Sketcher.Constraint("Diameter", 0, 1.9),
    Sketcher.Constraint("DistanceX", -1, 1, 0, 3, 34.8),
    Sketcher.Constraint("DistanceY", 0, 3, -1, 1, 12.12206),
])
pocket9 = body.newObject("PartDesign::Pocket", "Pocket008")
pocket9.Profile = sketch12
pocket9.Length = 50

sketch13 = body.newObject("Sketcher::SketchObject", "Sketch012")
sketch13.AttachmentSupport = (doc.getObject("XZ_Plane"), [""])
sketch13.MapMode = "FlatFace"
sketch13.addGeometry(Part.Circle(App.Vector(34.8, -12.1, 0), App.Vector(0, 0, 1), 2.5), False)
sketch13.addConstraint([
    Sketcher.Constraint("Diameter", 0, 5.0),
    Sketcher.Constraint("DistanceX", -1, 1, 0, 3, 34.8),
    Sketcher.Constraint("DistanceY", 0, 3, -1, 1, 12.12206),
])
pocket10 = body.newObject("PartDesign::Pocket", "Pocket009")
pocket10.Profile = sketch13
pocket10.Length = 2

sketch14 = body.newObject("Sketcher::SketchObject", "Sketch013")
sketch14.AttachmentSupport = (doc.getObject("XZ_Plane"), [""])
sketch14.MapMode = "FlatFace"
sketch14.AttachmentOffset = App.Placement(App.Vector(0, 0, -46.6), App.Rotation())
sketch14.addGeometry(Part.Circle(App.Vector(34.8, -12.1, 0), App.Vector(0, 0, 1), 2.5), False)
sketch14.addConstraint([
    Sketcher.Constraint("Diameter", 0, 5.0),
    Sketcher.Constraint("DistanceX", -1, 1, 0, 3, 34.8),
    Sketcher.Constraint("DistanceY", 0, 3, -1, 1, 12.12206),
])
pocket11 = body.newObject("PartDesign::Pocket", "Pocket010")
pocket11.Profile = sketch14
pocket11.Length = 2

sketch15 = body.newObject("Sketcher::SketchObject", "Sketch014")
sketch15.AttachmentSupport = (doc.getObject("YZ_Plane"), [""])
sketch15.MapMode = "FlatFace"
sketch15.AttachmentOffset = App.Placement(App.Vector(0, 0, 26.5), App.Rotation())
sketch15.addGeometry([
    Part.LineSegment(App.Vector(43.6, 20, 0), App.Vector(5, 20, 0)),
    Part.LineSegment(App.Vector(5, 20, 0), App.Vector(5, 17, 0)),
    Part.LineSegment(App.Vector(5, 17, 0), App.Vector(43.6, 17, 0)),
    Part.LineSegment(App.Vector(43.6, 17, 0), App.Vector(43.6, 20, 0)),
], False)
sketch15.addConstraint([
    Sketcher.Constraint("Coincident", 0, 2, 1, 1),
    Sketcher.Constraint("Coincident", 1, 2, 2, 1),
    Sketcher.Constraint("Coincident", 2, 2, 3, 1),
    Sketcher.Constraint("Coincident", 3, 2, 0, 1),
    Sketcher.Constraint("Horizontal", 0),
    Sketcher.Constraint("Vertical", 1),
    Sketcher.Constraint("Horizontal", 2),
    Sketcher.Constraint("Vertical", 3),
    Sketcher.Constraint("DistanceY", 1, 2, 1, 1, 3.0),
    Sketcher.Constraint("DistanceX", 0, 2, 0, 1, 38.6),
    Sketcher.Constraint("DistanceX", -1, 1, 0, 2, 5.0),
    Sketcher.Constraint("DistanceY", -1, 1, 0, 2, 20.0),
])
pad4 = body.newObject("PartDesign::Pad", "Pad003")
pad4.Profile = sketch15
pad4.Length = 10

sketch16 = body.newObject("Sketcher::SketchObject", "Sketch015")
sketch16.AttachmentSupport = (doc.getObject("XY_Plane"), [""])
sketch16.MapMode = "FlatFace"
sketch16.AttachmentOffset = App.Placement(App.Vector(0, 0, 20), App.Rotation())
sketch16.addGeometry([
    Part.LineSegment(App.Vector(15.5, 48.6, 0), App.Vector(15, 48.6, 0)),
    Part.LineSegment(App.Vector(15, 48.6, 0), App.Vector(15, 33.6, 0)),
    Part.LineSegment(App.Vector(15, 33.6, 0), App.Vector(0, 33.6, 0)),
    Part.LineSegment(App.Vector(0, 33.6, 0), App.Vector(0, 33.1, 0)),
    Part.LineSegment(App.Vector(0, 33.1, 0), App.Vector(15, 33.1, 0)),
    Part.LineSegment(App.Vector(15, 33.1, 0), App.Vector(15, 15.5, 0)),
    Part.LineSegment(App.Vector(15, 15.5, 0), App.Vector(0, 15.5, 0)),
    Part.LineSegment(App.Vector(0, 15.5, 0), App.Vector(0, 15, 0)),
    Part.LineSegment(App.Vector(0, 15, 0), App.Vector(15, 15, 0)),
    Part.LineSegment(App.Vector(15, 15, 0), App.Vector(15, 0, 0)),
    Part.LineSegment(App.Vector(15, 0, 0), App.Vector(15.5, 0, 0)),
    Part.LineSegment(App.Vector(15.5, 0, 0), App.Vector(15.5, 15, 0)),
    Part.LineSegment(App.Vector(15.5, 15, 0), App.Vector(27.3, 15, 0)),
    Part.LineSegment(App.Vector(27.3, 15, 0), App.Vector(27.3, 0, 0)),
    Part.LineSegment(App.Vector(27.3, 0, 0), App.Vector(27.8, 0, 0)),
    Part.LineSegment(App.Vector(27.8, 0, 0), App.Vector(27.8, 15, 0)),
    Part.LineSegment(App.Vector(27.8, 15, 0), App.Vector(36.5, 15, 0)),
    Part.LineSegment(App.Vector(36.5, 15, 0), App.Vector(36.5, 15.5, 0)),
    Part.LineSegment(App.Vector(36.5, 15.5, 0), App.Vector(27.8, 15.5, 0)),
    Part.LineSegment(App.Vector(27.8, 15.5, 0), App.Vector(27.8, 33.1, 0)),
    Part.LineSegment(App.Vector(27.8, 33.1, 0), App.Vector(36.5, 33.1, 0)),
    Part.LineSegment(App.Vector(36.5, 33.1, 0), App.Vector(36.5, 33.6, 0)),
    Part.LineSegment(App.Vector(36.5, 33.6, 0), App.Vector(27.8, 33.6, 0)),
    Part.LineSegment(App.Vector(27.8, 33.6, 0), App.Vector(27.8, 48.6, 0)),
    Part.LineSegment(App.Vector(27.8, 48.6, 0), App.Vector(27.3, 48.6, 0)),
    Part.LineSegment(App.Vector(27.3, 48.6, 0), App.Vector(27.3, 33.6, 0)),
    Part.LineSegment(App.Vector(27.3, 33.6, 0), App.Vector(15.5, 33.6, 0)),
    Part.LineSegment(App.Vector(15.5, 33.6, 0), App.Vector(15.5, 48.6, 0)),
    Part.LineSegment(App.Vector(15.5, 15.5, 0), App.Vector(15.5, 33.1, 0)),
    Part.LineSegment(App.Vector(15.5, 33.1, 0), App.Vector(27.3, 33.1, 0)),
    Part.LineSegment(App.Vector(27.3, 33.1, 0), App.Vector(27.3, 15.5, 0)),
    Part.LineSegment(App.Vector(27.3, 15.5, 0), App.Vector(15.5, 15.5, 0)),
], False)
sketch16.addConstraint([
    Sketcher.Constraint("Coincident", 0, 2, 1, 1),
    Sketcher.Constraint("Coincident", 1, 2, 2, 1),
    Sketcher.Constraint("Coincident", 2, 2, 3, 1),
    Sketcher.Constraint("Coincident", 3, 2, 4, 1),
    Sketcher.Constraint("Coincident", 4, 2, 5, 1),
    Sketcher.Constraint("Coincident", 5, 2, 6, 1),
    Sketcher.Constraint("Coincident", 6, 2, 7, 1),
    Sketcher.Constraint("Coincident", 7, 2, 8, 1),
    Sketcher.Constraint("Coincident", 8, 2, 9, 1),
    Sketcher.Constraint("Coincident", 9, 2, 10, 1),
    Sketcher.Constraint("Coincident", 10, 2, 11, 1),
    Sketcher.Constraint("Coincident", 11, 2, 12, 1),
    Sketcher.Constraint("Coincident", 12, 2, 13, 1),
    Sketcher.Constraint("Coincident", 13, 2, 14, 1),
    Sketcher.Constraint("Coincident", 14, 2, 15, 1),
    Sketcher.Constraint("Coincident", 15, 2, 16, 1),
    Sketcher.Constraint("Coincident", 16, 2, 17, 1),
    Sketcher.Constraint("Coincident", 17, 2, 18, 1),
    Sketcher.Constraint("Coincident", 18, 2, 19, 1),
    Sketcher.Constraint("Coincident", 19, 2, 20, 1),
    Sketcher.Constraint("Coincident", 20, 2, 21, 1),
    Sketcher.Constraint("Coincident", 21, 2, 22, 1),
    Sketcher.Constraint("Coincident", 22, 2, 23, 1),
    Sketcher.Constraint("Coincident", 23, 2, 24, 1),
    Sketcher.Constraint("Coincident", 24, 2, 25, 1),
    Sketcher.Constraint("Coincident", 25, 2, 26, 1),
    Sketcher.Constraint("Coincident", 26, 2, 27, 1),
    Sketcher.Constraint("Coincident", 27, 2, 0, 1),
    Sketcher.Constraint("Coincident", 28, 2, 29, 1),
    Sketcher.Constraint("Coincident", 29, 2, 30, 1),
    Sketcher.Constraint("Coincident", 30, 2, 31, 1),
    Sketcher.Constraint("Coincident", 31, 2, 28, 1),
    Sketcher.Constraint("Horizontal", 0),
    Sketcher.Constraint("Vertical", 1),
    Sketcher.Constraint("Horizontal", 2),
    Sketcher.Constraint("Vertical", 3),
    Sketcher.Constraint("Horizontal", 4),
    Sketcher.Constraint("Vertical", 5),
    Sketcher.Constraint("Horizontal", 6),
    Sketcher.Constraint("Vertical", 7),
    Sketcher.Constraint("Horizontal", 8),
    Sketcher.Constraint("Vertical", 9),
    Sketcher.Constraint("Horizontal", 10),
    Sketcher.Constraint("Vertical", 11),
    Sketcher.Constraint("Horizontal", 12),
    Sketcher.Constraint("Vertical", 13),
    Sketcher.Constraint("Horizontal", 14),
    Sketcher.Constraint("Vertical", 15),
    Sketcher.Constraint("Horizontal", 16),
    Sketcher.Constraint("Vertical", 17),
    Sketcher.Constraint("Horizontal", 18),
    Sketcher.Constraint("Vertical", 19),
    Sketcher.Constraint("Horizontal", 20),
    Sketcher.Constraint("Vertical", 21),
    Sketcher.Constraint("Horizontal", 22),
    Sketcher.Constraint("Vertical", 23),
    Sketcher.Constraint("Horizontal", 24),
    Sketcher.Constraint("Vertical", 25),
    Sketcher.Constraint("Horizontal", 26),
    Sketcher.Constraint("Vertical", 27),
    Sketcher.Constraint("Vertical", 28),
    Sketcher.Constraint("Horizontal", 29),
    Sketcher.Constraint("Vertical", 30),
    Sketcher.Constraint("Horizontal", 31),
    Sketcher.Constraint("PointOnObject", 2, 2, -2),
    Sketcher.Constraint("PointOnObject", 6, 2, -2),
    Sketcher.Constraint("PointOnObject", 9, 2, -1),
    Sketcher.Constraint("PointOnObject", 13, 2, -1),
    Sketcher.Constraint("Horizontal", 8, 2, 11, 2),
    Sketcher.Constraint("Horizontal", 12, 2, 15, 2),
    Sketcher.Constraint("Horizontal", 6, 2, 17, 2),
    Sketcher.Constraint("Horizontal", 4, 2, 19, 2),
    Sketcher.Constraint("Horizontal", 2, 2, 21, 2),
    Sketcher.Constraint("Horizontal", 0, 2, 23, 2),
    Sketcher.Constraint("Horizontal", 22, 2, 25, 2),
    Sketcher.Constraint("Horizontal", 20, 2, 28, 2),
    Sketcher.Constraint("Horizontal", 18, 2, 30, 2),
    Sketcher.Constraint("Vertical", 1, 2, 4, 2),
    Sketcher.Constraint("Vertical", 5, 2, 8, 2),
    Sketcher.Constraint("Vertical", 15, 2, 18, 2),
    Sketcher.Constraint("Vertical", 17, 2, 20, 2),
    Sketcher.Constraint("Vertical", 19, 2, 22, 2),
    Sketcher.Constraint("Vertical", 13, 2, 24, 2),
    Sketcher.Constraint("Vertical", 11, 2, 26, 2),
    Sketcher.Constraint("Vertical", 27, 2, 28, 2),
    Sketcher.Constraint("Vertical", 25, 2, 29, 2),
    Sketcher.Constraint("Equal", 10, 14),
    Sketcher.Constraint("Equal", 8, 1),
    Sketcher.Constraint("Equal", 24, 3),
    Sketcher.Constraint("Equal", 3, 7),
    Sketcher.Constraint("Equal", 1, 9),
    Sketcher.Constraint("DistanceX", 2, 2, 2, 1, 15.0),
    Sketcher.Constraint("DistanceX", 0, 2, 0, 1, 0.5),
    Sketcher.Constraint("DistanceX", 12, 1, 12, 2, 11.8),
    Sketcher.Constraint("DistanceX", 16, 1, 16, 2, 8.7),
    Sketcher.Constraint("DistanceY", 5, 2, 5, 1, 17.6),
])
pocket12 = body.newObject("PartDesign::Pocket", "Pocket011")
pocket12.Profile = sketch16
pocket12.Length = 0.5

sketch17 = body.newObject("Sketcher::SketchObject", "Sketch016")
sketch17.AttachmentSupport = (doc.getObject("XY_Plane"), [""])
sketch17.MapMode = "FlatFace"
sketch17.AttachmentOffset = App.Placement(App.Vector(0, 0, 17), App.Rotation())
sketch17.addGeometry(Part.Circle(App.Vector(31.5, 24.3, 0), App.Vector(0, 0, 1), 0.9), False)
sketch17.addConstraint([
    Sketcher.Constraint("Diameter", 0, 1.9),
    Sketcher.Constraint("DistanceX", -1, 1, 0, 3, 31.5),
    Sketcher.Constraint("DistanceY", -1, 1, 0, 3, 24.3),
])
pocket13 = body.newObject("PartDesign::Pocket", "Pocket012")
pocket13.Profile = sketch17
pocket13.Length = 10.5
pocket13.Reversed = True

sketch18 = body.newObject("Sketcher::SketchObject", "Sketch017")
sketch18.AttachmentSupport = (doc.getObject("XY_Plane"), [""])
sketch18.MapMode = "FlatFace"
sketch18.AttachmentOffset = App.Placement(App.Vector(0, 0, -20), App.Rotation())
sketch18.addGeometry([
    Part.LineSegment(App.Vector(12.8, 44.3, 0), App.Vector(12.8, 43.6, 0)),
    Part.LineSegment(App.Vector(12.8, 43.6, 0), App.Vector(4, 43.6, 0)),
    Part.LineSegment(App.Vector(4, 43.6, 0), App.Vector(4, 44.3, 0)),
    Part.LineSegment(App.Vector(4, 44.3, 0), App.Vector(12.8, 44.3, 0)),
    Part.LineSegment(App.Vector(12.8, 5, 0), App.Vector(12.8, 4.3, 0)),
    Part.LineSegment(App.Vector(12.8, 4.3, 0), App.Vector(4, 4.3, 0)),
    Part.LineSegment(App.Vector(4, 4.3, 0), App.Vector(4, 5, 0)),
    Part.LineSegment(App.Vector(4, 5, 0), App.Vector(12.8, 5, 0)),
], False)
sketch18.addConstraint([
    Sketcher.Constraint("Coincident", 0, 2, 1, 1),
    Sketcher.Constraint("Coincident", 1, 2, 2, 1),
    Sketcher.Constraint("Coincident", 2, 2, 3, 1),
    Sketcher.Constraint("Coincident", 3, 2, 0, 1),
    Sketcher.Constraint("Coincident", 4, 2, 5, 1),
    Sketcher.Constraint("Coincident", 5, 2, 6, 1),
    Sketcher.Constraint("Coincident", 6, 2, 7, 1),
    Sketcher.Constraint("Coincident", 7, 2, 4, 1),
    Sketcher.Constraint("Vertical", 0),
    Sketcher.Constraint("Horizontal", 1),
    Sketcher.Constraint("Vertical", 2),
    Sketcher.Constraint("Horizontal", 3),
    Sketcher.Constraint("Vertical", 4),
    Sketcher.Constraint("Horizontal", 5),
    Sketcher.Constraint("Vertical", 6),
    Sketcher.Constraint("Horizontal", 7),
    Sketcher.Constraint("Vertical", 3, 2, 4, 2),
    Sketcher.Constraint("Vertical", 2, 2, 5, 2),
    Sketcher.Constraint("Equal", 2, 4),
    Sketcher.Constraint("DistanceX", 1, 2, 1, 1, 8.8),
    Sketcher.Constraint("DistanceY", 0, 2, 0, 1, 0.7),
    Sketcher.Constraint("DistanceX", -1, 1, 1, 2, 4.0),
    Sketcher.Constraint("DistanceY", -1, 1, 6, 2, 5.0),
    Sketcher.Constraint("DistanceY", 4, 2, 3, 2, 40.0),
])
pocket14 = body.newObject("PartDesign::Pocket", "Pocket013")
pocket14.Profile = sketch18
pocket14.Length = 12
pocket14.Reversed = True

sketch19 = body.newObject("Sketcher::SketchObject", "Sketch018")
sketch19.AttachmentSupport = (doc.getObject("XY_Plane"), [""])
sketch19.MapMode = "FlatFace"
sketch19.AttachmentOffset = App.Placement(App.Vector(0, 0, 20), App.Rotation())
sketch19.addGeometry([
    Part.LineSegment(App.Vector(40.5, 48.6, 0), App.Vector(40.5, 0, 0)),
    Part.LineSegment(App.Vector(40.5, 0, 0), App.Vector(42.8, 0, 0)),
    Part.LineSegment(App.Vector(42.8, 0, 0), App.Vector(42.8, 48.6, 0)),
    Part.LineSegment(App.Vector(42.8, 48.6, 0), App.Vector(40.5, 48.6, 0)),
], False)
sketch19.addConstraint([
    Sketcher.Constraint("Coincident", 0, 2, 1, 1),
    Sketcher.Constraint("Coincident", 1, 2, 2, 1),
    Sketcher.Constraint("Coincident", 2, 2, 3, 1),
    Sketcher.Constraint("Coincident", 3, 2, 0, 1),
    Sketcher.Constraint("Vertical", 0),
    Sketcher.Constraint("Horizontal", 1),
    Sketcher.Constraint("Vertical", 2),
    Sketcher.Constraint("Horizontal", 3),
    Sketcher.Constraint("PointOnObject", 0, 2, -1),
    Sketcher.Constraint("DistanceX", 1, 1, 1, 2, 2.3),
    Sketcher.Constraint("DistanceY", 0, 2, 0, 1, 48.6),
    Sketcher.Constraint("DistanceX", -1, 1, 0, 2, 40.5),
])
pad5 = body.newObject("PartDesign::Pad", "Pad004")
pad5.Profile = sketch19
pad5.Length = 13
pad5.Reversed = True

sketch20 = body.newObject("Sketcher::SketchObject", "Sketch019")
sketch20.AttachmentSupport = (doc.getObject("XY_Plane"), [""])
sketch20.MapMode = "FlatFace"
sketch20.AttachmentOffset = App.Placement(App.Vector(0, 0, 20), App.Rotation())
sketch20.addGeometry([
    Part.Circle(App.Vector(16.9, 9, 0), App.Vector(0, 0, 1), 0.9),
    Part.Circle(App.Vector(16.9, 39.6, 0), App.Vector(0, 0, 1), 0.9),
], False)
sketch20.addConstraint([
    Sketcher.Constraint("Equal", 0, 1),
    Sketcher.Constraint("Vertical", 0, 3, 1, 3),
    Sketcher.Constraint("Diameter", 0, 1.9),
    Sketcher.Constraint("DistanceY", -1, 1, 0, 3, 9.0),
    Sketcher.Constraint("DistanceX", -1, 1, 0, 3, 16.9),
    Sketcher.Constraint("DistanceY", -1, 1, 1, 3, 39.6),
])
pocket15 = body.newObject("PartDesign::Pocket", "Pocket014")
pocket15.Profile = sketch20
pocket15.Length = 10

sketch21 = body.newObject("Sketcher::SketchObject", "Sketch020")
sketch21.AttachmentSupport = (doc.getObject("XY_Plane"), [""])
sketch21.MapMode = "FlatFace"
sketch21.AttachmentOffset = App.Placement(App.Vector(0, 0, 7), App.Rotation())
sketch21.addGeometry([
    Part.Circle(App.Vector(21.5, 41.9, 0), App.Vector(0, 0, 1), 1.2),
    Part.Circle(App.Vector(11.5, 24.3, 0), App.Vector(0, 0, 1), 1.2),
    Part.Circle(App.Vector(21.5, 6.7, 0), App.Vector(0, 0, 1), 1.2),
], False)
sketch21.addConstraint([
    Sketcher.Constraint("Equal", 0, 1),
    Sketcher.Constraint("Equal", 1, 2),
    Sketcher.Constraint("Vertical", 0, 3, 2, 3),
    Sketcher.Constraint("Diameter", 0, 2.5),
    Sketcher.Constraint("DistanceX", 1, 3, 0, 3, 10.0),
    Sketcher.Constraint("DistanceX", -1, 1, 0, 3, 21.5),
    Sketcher.Constraint("DistanceY", -1, 1, 0, 3, 41.9),
    Sketcher.Constraint("DistanceY", -1, 1, 1, 3, 24.3),
    Sketcher.Constraint("DistanceY", -1, 1, 2, 3, 6.7),
])
pocket16 = body.newObject("PartDesign::Pocket", "Pocket015")
pocket16.Profile = sketch21
pocket16.Length = 2
pocket16.Reversed = True

doc.recompute()
